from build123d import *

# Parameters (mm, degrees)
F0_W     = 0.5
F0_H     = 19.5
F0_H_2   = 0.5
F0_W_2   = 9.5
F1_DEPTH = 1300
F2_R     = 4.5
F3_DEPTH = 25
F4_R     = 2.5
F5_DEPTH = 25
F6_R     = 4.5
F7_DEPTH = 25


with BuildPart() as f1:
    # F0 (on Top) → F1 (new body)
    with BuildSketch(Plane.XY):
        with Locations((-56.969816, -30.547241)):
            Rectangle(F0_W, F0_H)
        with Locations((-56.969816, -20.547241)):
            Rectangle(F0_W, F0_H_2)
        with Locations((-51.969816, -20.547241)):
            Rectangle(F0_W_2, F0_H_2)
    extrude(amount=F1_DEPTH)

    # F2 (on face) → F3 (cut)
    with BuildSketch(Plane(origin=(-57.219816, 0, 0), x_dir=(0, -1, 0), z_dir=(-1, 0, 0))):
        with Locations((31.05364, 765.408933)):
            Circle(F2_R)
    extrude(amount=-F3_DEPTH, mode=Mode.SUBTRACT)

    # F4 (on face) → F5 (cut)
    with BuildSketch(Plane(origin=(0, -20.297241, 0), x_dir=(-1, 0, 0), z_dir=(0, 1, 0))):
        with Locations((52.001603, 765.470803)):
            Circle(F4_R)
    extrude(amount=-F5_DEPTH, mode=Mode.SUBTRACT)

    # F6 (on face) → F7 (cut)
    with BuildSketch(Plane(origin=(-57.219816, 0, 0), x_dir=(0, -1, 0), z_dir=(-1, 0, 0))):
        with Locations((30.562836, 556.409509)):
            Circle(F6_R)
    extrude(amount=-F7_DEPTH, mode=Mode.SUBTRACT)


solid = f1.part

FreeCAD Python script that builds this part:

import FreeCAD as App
import Part
import Sketcher

doc = App.newDocument("Part")
body = doc.addObject("PartDesign::Body", "Body")

sketch1 = body.newObject("Sketcher::SketchObject", "Sketch")
sketch1.AttachmentSupport = (doc.getObject("XY_Plane"), [""])
sketch1.MapMode = "FlatFace"
sketch1.addGeometry([
    Part.LineSegment(App.Vector(-57.2, -40.3, 0), App.Vector(-56.7, -40.3, 0)),
    Part.LineSegment(App.Vector(-56.7, -40.3, 0), App.Vector(-56.7, -20.8, 0)),
    Part.LineSegment(App.Vector(-56.7, -20.8, 0), App.Vector(-47.2, -20.8, 0)),
    Part.LineSegment(App.Vector(-47.2, -20.8, 0), App.Vector(-47.2, -20.3, 0)),
    Part.LineSegment(App.Vector(-47.2, -20.3, 0), App.Vector(-57.2, -20.3, 0)),
    Part.LineSegment(App.Vector(-57.2, -20.3, 0), App.Vector(-57.2, -40.3, 0)),
], False)
sketch1.addConstraint([
    Sketcher.Constraint("Coincident", 0, 2, 1, 1),
    Sketcher.Constraint("Coincident", 1, 2, 2, 1),
    Sketcher.Constraint("Coincident", 2, 2, 3, 1),
    Sketcher.Constraint("Coincident", 3, 2, 4, 1),
    Sketcher.Constraint("Coincident", 4, 2, 5, 1),
    Sketcher.Constraint("Coincident", 5, 2, 0, 1),
    Sketcher.Constraint("Horizontal", 0),
    Sketcher.Constraint("Vertical", 1),
    Sketcher.Constraint("Horizontal", 2),
    Sketcher.Constraint("Vertical", 3),
    Sketcher.Constraint("Horizontal", 4),
    Sketcher.Constraint("Vertical", 5),
    Sketcher.Constraint("Equal", 0, 3),
    Sketcher.Constraint("DistanceX", 4, 2, 4, 1, 10.0),
    Sketcher.Constraint("DistanceY", 5, 2, 5, 1, 20.0),
    Sketcher.Constraint("DistanceX", 0, 1, 0, 2, 0.5),
    Sketcher.Constraint("DistanceY", 0, 2, -1, 1, 40.297241),
    Sketcher.Constraint("DistanceX", 0, 2, -1, 1, 56.719816),
])
pad1 = body.newObject("PartDesign::Pad", "Pad")
pad1.Profile = sketch1
pad1.Length = 1300

sketch2 = body.newObject("Sketcher::SketchObject", "Sketch001")
sketch2.AttachmentSupport = (doc.getObject("YZ_Plane"), [""])
sketch2.MapMode = "FlatFace"
sketch2.AttachmentOffset = App.Placement(App.Vector(0, 0, -57.219816), App.Rotation())
sketch2.addGeometry(Part.Circle(App.Vector(-31.1, 765.4, 0), App.Vector(0, 0, 1), 4.5), False)
sketch2.addConstraint([
    Sketcher.Constraint("Diameter", 0, 9.0),
    Sketcher.Constraint("DistanceX", 0, 3, -1, 1, 31.05364),
    Sketcher.Constraint("DistanceY", -1, 1, 0, 3, 765.408933),
])
pocket1 = body.newObject("PartDesign::Pocket", "Pocket")
pocket1.Profile = sketch2
pocket1.Length = 25
pocket1.Reversed = True

sketch3 = body.newObject("Sketcher::SketchObject", "Sketch002")
sketch3.AttachmentSupport = (doc.getObject("XZ_Plane"), [""])
sketch3.MapMode = "FlatFace"
sketch3.AttachmentOffset = App.Placement(App.Vector(0, 0, 20.297241), App.Rotation())
sketch3.addGeometry(Part.Circle(App.Vector(-52, 765.5, 0), App.Vector(0, 0, 1), 2.5), False)
sketch3.addConstraint([
    Sketcher.Constraint("Diameter", 0, 5.0),
    Sketcher.Constraint("DistanceX", 0, 3, -1, 1, 52.001603),
    Sketcher.Constraint("DistanceY", -1, 1, 0, 3, 765.470803),
])
pocket2 = body.newObject("PartDesign::Pocket", "Pocket001")
pocket2.Profile = sketch3
pocket2.Length = 25
pocket2.Reversed = True

sketch4 = body.newObject("Sketcher::SketchObject", "Sketch003")
sketch4.AttachmentSupport = (doc.getObject("YZ_Plane"), [""])
sketch4.MapMode = "FlatFace"
sketch4.AttachmentOffset = App.Placement(App.Vector(0, 0, -57.219816), App.Rotation())
sketch4.addGeometry(Part.Circle(App.Vector(-30.6, 556.4, 0), App.Vector(0, 0, 1), 4.5), False)
sketch4.addConstraint([
    Sketcher.Constraint("Diameter", 0, 9.0),
    Sketcher.Constraint("DistanceY", -1, 1, 0, 3, 556.409509),
    Sketcher.Constraint("DistanceX", 0, 3, -1, 1, 30.562836),
])
pocket3 = body.newObject("PartDesign::Pocket", "Pocket002")
pocket3.Profile = sketch4
pocket3.Length = 25
pocket3.Reversed = True

doc.recompute()
